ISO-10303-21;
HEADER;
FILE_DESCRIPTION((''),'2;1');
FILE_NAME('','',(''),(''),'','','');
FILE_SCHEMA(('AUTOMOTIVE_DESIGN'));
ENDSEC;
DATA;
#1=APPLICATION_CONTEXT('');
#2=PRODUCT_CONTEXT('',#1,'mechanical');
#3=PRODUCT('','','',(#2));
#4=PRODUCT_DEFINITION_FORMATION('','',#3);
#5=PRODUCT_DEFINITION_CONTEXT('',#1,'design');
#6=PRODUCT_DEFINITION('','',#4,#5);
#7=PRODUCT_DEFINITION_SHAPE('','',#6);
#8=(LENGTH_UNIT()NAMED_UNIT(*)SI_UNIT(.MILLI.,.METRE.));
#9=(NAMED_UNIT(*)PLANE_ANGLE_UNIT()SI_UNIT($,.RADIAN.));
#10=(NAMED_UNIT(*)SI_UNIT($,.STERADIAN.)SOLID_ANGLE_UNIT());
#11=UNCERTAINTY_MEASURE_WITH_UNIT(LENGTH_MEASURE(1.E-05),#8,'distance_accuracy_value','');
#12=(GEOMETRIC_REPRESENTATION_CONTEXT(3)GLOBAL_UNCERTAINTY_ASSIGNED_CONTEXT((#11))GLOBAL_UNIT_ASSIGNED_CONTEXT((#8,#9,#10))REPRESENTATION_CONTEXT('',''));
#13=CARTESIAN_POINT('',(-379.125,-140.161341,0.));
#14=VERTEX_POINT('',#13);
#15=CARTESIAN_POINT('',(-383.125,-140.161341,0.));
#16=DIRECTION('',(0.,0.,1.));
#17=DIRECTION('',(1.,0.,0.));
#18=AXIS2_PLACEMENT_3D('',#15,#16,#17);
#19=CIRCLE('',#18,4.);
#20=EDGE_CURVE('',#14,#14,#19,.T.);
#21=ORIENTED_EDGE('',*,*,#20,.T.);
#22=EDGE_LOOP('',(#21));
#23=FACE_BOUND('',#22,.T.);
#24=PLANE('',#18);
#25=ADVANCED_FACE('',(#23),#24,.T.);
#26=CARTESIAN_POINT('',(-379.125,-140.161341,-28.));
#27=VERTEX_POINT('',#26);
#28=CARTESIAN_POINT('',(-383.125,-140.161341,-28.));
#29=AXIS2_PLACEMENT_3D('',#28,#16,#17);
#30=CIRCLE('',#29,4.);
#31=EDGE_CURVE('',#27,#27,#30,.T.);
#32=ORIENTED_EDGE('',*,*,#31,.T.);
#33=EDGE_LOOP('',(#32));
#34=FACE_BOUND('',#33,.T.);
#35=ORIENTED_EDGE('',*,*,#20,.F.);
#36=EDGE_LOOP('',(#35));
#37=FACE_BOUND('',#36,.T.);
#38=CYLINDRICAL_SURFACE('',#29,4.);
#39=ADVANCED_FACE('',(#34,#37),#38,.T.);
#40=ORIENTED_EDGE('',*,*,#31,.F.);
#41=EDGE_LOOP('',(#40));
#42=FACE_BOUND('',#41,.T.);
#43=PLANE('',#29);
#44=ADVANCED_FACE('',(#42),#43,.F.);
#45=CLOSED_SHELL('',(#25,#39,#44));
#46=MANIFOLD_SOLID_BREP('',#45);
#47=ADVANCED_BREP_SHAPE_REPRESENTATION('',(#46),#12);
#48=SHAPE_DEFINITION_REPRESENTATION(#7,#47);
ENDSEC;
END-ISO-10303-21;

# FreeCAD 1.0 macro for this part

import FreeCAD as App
import Part
import Sketcher

V = App.Vector

doc = App.newDocument("Part")
body = doc.addObject("PartDesign::Body", "Body")

# Sketch on XY plane
sketch1 = body.newObject("Sketcher::SketchObject", "Sketch")
sketch1.AttachmentSupport = (doc.getObject("XY_Plane"), [""])
sketch1.MapMode = "FlatFace"
sketch1.addGeometry(Part.Circle(V(-383.1, -140.2, 0), V(0, 0, 1), 4), False)
sketch1.addConstraint([
    Sketcher.Constraint("Diameter", 0, 8.0),
    Sketcher.Constraint("DistanceX", 0, 3, -1, 1, 383.125),
    Sketcher.Constraint("DistanceY", 0, 3, -1, 1, 140.161341),
])
pad1 = body.newObject("PartDesign::Pad", "Pad")
pad1.Profile = sketch1
pad1.Length = 28
pad1.Reversed = True

doc.recompute()
